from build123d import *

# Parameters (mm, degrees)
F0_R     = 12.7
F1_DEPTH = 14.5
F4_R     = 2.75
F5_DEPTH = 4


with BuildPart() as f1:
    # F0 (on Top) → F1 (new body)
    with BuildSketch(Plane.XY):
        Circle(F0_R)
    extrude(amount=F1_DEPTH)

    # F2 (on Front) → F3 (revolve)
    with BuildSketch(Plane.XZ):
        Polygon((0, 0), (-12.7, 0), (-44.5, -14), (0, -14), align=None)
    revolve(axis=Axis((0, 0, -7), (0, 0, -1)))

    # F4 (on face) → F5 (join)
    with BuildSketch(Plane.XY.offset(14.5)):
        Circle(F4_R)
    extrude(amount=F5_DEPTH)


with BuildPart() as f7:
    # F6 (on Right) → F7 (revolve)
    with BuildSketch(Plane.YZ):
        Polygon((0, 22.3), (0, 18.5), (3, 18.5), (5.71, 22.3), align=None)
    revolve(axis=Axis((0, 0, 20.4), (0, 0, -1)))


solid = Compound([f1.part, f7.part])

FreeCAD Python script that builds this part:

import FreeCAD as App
import Part
import Sketcher
from FreeCAD import Vector

doc = App.newDocument("Part")
body = doc.addObject("PartDesign::Body", "Body")

# Sketch on XY plane
sketch1 = body.newObject("Sketcher::SketchObject", "Sketch")
sketch1.AttachmentSupport = (doc.getObject("XY_Plane"), [""])
sketch1.MapMode = "FlatFace"
sketch1.addGeometry(Part.Circle(Vector(0, 0, 0), Vector(0, 0, 1), 12.7), False)
sketch1.addConstraint([
    Sketcher.Constraint("Coincident", 0, 3, -1, 1),
    Sketcher.Constraint("Diameter", 0, 25.4),
])
pad1 = body.newObject("PartDesign::Pad", "Pad")
pad1.Profile = sketch1
pad1.Length = 14.5

# Sketch on XZ plane
sketch2 = body.newObject("Sketcher::SketchObject", "Sketch001")
sketch2.AttachmentSupport = (doc.getObject("XZ_Plane"), [""])
sketch2.MapMode = "FlatFace"
sketch2.addGeometry([
    Part.LineSegment(Vector(0, 0, 0), Vector(-12.7, 0, 0)),
    Part.LineSegment(Vector(-12.7, 0, 0), Vector(-44.5, -14, 0)),
    Part.LineSegment(Vector(-44.5, -14, 0), Vector(0, -14, 0)),
    Part.LineSegment(Vector(0, -14, 0), Vector(0, 0, 0)),
], False)
sketch2.addConstraint([
    Sketcher.Constraint("Coincident", 0, 2, 1, 1),
    Sketcher.Constraint("Coincident", 1, 2, 2, 1),
    Sketcher.Constraint("Coincident", 2, 2, 3, 1),
    Sketcher.Constraint("Coincident", 3, 2, 0, 1),
    Sketcher.Constraint("Horizontal", 0),
    Sketcher.Constraint("Horizontal", 2),
    Sketcher.Constraint("Vertical", 3),
    Sketcher.Constraint("Coincident", 3, 2, -1, 1),
    Sketcher.Constraint("DistanceY", 3, 1, 3, 2, 14.0),
    Sketcher.Constraint("DistanceX", 0, 2, 0, 1, 12.7),
    Sketcher.Constraint("DistanceX", 2, 1, 2, 2, 44.5),
])
revolution = body.newObject("PartDesign::Revolution", "Revolution")
revolution.Profile = sketch2
revolution.ReferenceAxis = (sketch2, ["V_Axis"])
revolution.Angle = 360

# Sketch on XY plane
sketch3 = body.newObject("Sketcher::SketchObject", "Sketch002")
sketch3.AttachmentSupport = (doc.getObject("XY_Plane"), [""])
sketch3.MapMode = "FlatFace"
sketch3.AttachmentOffset = App.Placement(Vector(0, 0, 14.5), App.Rotation())
sketch3.addGeometry(Part.Circle(Vector(0, 0, 0), Vector(0, 0, 1), 2.75), False)
sketch3.addConstraint([
    Sketcher.Constraint("Coincident", 0, 3, -1, 1),
    Sketcher.Constraint("Diameter", 0, 5.5),
])
pad2 = body.newObject("PartDesign::Pad", "Pad001")
pad2.Profile = sketch3
pad2.Length = 4
body2 = doc.addObject("PartDesign::Body", "Body001")

# Sketch on YZ plane
sketch4 = body2.newObject("Sketcher::SketchObject", "Sketch003")
sketch4.AttachmentSupport = (doc.getObject("YZ_Plane001"), [""])
sketch4.MapMode = "FlatFace"
sketch4.addGeometry([
    Part.LineSegment(Vector(0, 22.3, 0), Vector(0, 18.5, 0)),
    Part.LineSegment(Vector(0, 18.5, 0), Vector(3, 18.5, 0)),
    Part.LineSegment(Vector(3, 18.5, 0), Vector(5.71, 22.3, 0)),
    Part.LineSegment(Vector(5.71, 22.3, 0), Vector(0, 22.3, 0)),
], False)
sketch4.addConstraint([
    Sketcher.Constraint("Coincident", 0, 2, 1, 1),
    Sketcher.Constraint("Coincident", 1, 2, 2, 1),
    Sketcher.Constraint("Coincident", 2, 2, 3, 1),
    Sketcher.Constraint("Coincident", 3, 2, 0, 1),
    Sketcher.Constraint("Vertical", 0),
    Sketcher.Constraint("Horizontal", 1),
    Sketcher.Constraint("Horizontal", 3),
    Sketcher.Constraint("PointOnObject", 0, 2, -2),
    Sketcher.Constraint("DistanceX", 1, 1, 1, 2, 3.0),
    Sketcher.Constraint("DistanceY", 0, 2, 0, 1, 3.8),
    Sketcher.Constraint("DistanceX", 3, 2, 3, 1, 5.71),
    Sketcher.Constraint("DistanceY", -1, 1, 0, 2, 18.5),
])
revolution2 = body2.newObject("PartDesign::Revolution", "Revolution001")
revolution2.Profile = sketch4
revolution2.ReferenceAxis = (sketch4, ["V_Axis"])
revolution2.Angle = 360

doc.recompute()
